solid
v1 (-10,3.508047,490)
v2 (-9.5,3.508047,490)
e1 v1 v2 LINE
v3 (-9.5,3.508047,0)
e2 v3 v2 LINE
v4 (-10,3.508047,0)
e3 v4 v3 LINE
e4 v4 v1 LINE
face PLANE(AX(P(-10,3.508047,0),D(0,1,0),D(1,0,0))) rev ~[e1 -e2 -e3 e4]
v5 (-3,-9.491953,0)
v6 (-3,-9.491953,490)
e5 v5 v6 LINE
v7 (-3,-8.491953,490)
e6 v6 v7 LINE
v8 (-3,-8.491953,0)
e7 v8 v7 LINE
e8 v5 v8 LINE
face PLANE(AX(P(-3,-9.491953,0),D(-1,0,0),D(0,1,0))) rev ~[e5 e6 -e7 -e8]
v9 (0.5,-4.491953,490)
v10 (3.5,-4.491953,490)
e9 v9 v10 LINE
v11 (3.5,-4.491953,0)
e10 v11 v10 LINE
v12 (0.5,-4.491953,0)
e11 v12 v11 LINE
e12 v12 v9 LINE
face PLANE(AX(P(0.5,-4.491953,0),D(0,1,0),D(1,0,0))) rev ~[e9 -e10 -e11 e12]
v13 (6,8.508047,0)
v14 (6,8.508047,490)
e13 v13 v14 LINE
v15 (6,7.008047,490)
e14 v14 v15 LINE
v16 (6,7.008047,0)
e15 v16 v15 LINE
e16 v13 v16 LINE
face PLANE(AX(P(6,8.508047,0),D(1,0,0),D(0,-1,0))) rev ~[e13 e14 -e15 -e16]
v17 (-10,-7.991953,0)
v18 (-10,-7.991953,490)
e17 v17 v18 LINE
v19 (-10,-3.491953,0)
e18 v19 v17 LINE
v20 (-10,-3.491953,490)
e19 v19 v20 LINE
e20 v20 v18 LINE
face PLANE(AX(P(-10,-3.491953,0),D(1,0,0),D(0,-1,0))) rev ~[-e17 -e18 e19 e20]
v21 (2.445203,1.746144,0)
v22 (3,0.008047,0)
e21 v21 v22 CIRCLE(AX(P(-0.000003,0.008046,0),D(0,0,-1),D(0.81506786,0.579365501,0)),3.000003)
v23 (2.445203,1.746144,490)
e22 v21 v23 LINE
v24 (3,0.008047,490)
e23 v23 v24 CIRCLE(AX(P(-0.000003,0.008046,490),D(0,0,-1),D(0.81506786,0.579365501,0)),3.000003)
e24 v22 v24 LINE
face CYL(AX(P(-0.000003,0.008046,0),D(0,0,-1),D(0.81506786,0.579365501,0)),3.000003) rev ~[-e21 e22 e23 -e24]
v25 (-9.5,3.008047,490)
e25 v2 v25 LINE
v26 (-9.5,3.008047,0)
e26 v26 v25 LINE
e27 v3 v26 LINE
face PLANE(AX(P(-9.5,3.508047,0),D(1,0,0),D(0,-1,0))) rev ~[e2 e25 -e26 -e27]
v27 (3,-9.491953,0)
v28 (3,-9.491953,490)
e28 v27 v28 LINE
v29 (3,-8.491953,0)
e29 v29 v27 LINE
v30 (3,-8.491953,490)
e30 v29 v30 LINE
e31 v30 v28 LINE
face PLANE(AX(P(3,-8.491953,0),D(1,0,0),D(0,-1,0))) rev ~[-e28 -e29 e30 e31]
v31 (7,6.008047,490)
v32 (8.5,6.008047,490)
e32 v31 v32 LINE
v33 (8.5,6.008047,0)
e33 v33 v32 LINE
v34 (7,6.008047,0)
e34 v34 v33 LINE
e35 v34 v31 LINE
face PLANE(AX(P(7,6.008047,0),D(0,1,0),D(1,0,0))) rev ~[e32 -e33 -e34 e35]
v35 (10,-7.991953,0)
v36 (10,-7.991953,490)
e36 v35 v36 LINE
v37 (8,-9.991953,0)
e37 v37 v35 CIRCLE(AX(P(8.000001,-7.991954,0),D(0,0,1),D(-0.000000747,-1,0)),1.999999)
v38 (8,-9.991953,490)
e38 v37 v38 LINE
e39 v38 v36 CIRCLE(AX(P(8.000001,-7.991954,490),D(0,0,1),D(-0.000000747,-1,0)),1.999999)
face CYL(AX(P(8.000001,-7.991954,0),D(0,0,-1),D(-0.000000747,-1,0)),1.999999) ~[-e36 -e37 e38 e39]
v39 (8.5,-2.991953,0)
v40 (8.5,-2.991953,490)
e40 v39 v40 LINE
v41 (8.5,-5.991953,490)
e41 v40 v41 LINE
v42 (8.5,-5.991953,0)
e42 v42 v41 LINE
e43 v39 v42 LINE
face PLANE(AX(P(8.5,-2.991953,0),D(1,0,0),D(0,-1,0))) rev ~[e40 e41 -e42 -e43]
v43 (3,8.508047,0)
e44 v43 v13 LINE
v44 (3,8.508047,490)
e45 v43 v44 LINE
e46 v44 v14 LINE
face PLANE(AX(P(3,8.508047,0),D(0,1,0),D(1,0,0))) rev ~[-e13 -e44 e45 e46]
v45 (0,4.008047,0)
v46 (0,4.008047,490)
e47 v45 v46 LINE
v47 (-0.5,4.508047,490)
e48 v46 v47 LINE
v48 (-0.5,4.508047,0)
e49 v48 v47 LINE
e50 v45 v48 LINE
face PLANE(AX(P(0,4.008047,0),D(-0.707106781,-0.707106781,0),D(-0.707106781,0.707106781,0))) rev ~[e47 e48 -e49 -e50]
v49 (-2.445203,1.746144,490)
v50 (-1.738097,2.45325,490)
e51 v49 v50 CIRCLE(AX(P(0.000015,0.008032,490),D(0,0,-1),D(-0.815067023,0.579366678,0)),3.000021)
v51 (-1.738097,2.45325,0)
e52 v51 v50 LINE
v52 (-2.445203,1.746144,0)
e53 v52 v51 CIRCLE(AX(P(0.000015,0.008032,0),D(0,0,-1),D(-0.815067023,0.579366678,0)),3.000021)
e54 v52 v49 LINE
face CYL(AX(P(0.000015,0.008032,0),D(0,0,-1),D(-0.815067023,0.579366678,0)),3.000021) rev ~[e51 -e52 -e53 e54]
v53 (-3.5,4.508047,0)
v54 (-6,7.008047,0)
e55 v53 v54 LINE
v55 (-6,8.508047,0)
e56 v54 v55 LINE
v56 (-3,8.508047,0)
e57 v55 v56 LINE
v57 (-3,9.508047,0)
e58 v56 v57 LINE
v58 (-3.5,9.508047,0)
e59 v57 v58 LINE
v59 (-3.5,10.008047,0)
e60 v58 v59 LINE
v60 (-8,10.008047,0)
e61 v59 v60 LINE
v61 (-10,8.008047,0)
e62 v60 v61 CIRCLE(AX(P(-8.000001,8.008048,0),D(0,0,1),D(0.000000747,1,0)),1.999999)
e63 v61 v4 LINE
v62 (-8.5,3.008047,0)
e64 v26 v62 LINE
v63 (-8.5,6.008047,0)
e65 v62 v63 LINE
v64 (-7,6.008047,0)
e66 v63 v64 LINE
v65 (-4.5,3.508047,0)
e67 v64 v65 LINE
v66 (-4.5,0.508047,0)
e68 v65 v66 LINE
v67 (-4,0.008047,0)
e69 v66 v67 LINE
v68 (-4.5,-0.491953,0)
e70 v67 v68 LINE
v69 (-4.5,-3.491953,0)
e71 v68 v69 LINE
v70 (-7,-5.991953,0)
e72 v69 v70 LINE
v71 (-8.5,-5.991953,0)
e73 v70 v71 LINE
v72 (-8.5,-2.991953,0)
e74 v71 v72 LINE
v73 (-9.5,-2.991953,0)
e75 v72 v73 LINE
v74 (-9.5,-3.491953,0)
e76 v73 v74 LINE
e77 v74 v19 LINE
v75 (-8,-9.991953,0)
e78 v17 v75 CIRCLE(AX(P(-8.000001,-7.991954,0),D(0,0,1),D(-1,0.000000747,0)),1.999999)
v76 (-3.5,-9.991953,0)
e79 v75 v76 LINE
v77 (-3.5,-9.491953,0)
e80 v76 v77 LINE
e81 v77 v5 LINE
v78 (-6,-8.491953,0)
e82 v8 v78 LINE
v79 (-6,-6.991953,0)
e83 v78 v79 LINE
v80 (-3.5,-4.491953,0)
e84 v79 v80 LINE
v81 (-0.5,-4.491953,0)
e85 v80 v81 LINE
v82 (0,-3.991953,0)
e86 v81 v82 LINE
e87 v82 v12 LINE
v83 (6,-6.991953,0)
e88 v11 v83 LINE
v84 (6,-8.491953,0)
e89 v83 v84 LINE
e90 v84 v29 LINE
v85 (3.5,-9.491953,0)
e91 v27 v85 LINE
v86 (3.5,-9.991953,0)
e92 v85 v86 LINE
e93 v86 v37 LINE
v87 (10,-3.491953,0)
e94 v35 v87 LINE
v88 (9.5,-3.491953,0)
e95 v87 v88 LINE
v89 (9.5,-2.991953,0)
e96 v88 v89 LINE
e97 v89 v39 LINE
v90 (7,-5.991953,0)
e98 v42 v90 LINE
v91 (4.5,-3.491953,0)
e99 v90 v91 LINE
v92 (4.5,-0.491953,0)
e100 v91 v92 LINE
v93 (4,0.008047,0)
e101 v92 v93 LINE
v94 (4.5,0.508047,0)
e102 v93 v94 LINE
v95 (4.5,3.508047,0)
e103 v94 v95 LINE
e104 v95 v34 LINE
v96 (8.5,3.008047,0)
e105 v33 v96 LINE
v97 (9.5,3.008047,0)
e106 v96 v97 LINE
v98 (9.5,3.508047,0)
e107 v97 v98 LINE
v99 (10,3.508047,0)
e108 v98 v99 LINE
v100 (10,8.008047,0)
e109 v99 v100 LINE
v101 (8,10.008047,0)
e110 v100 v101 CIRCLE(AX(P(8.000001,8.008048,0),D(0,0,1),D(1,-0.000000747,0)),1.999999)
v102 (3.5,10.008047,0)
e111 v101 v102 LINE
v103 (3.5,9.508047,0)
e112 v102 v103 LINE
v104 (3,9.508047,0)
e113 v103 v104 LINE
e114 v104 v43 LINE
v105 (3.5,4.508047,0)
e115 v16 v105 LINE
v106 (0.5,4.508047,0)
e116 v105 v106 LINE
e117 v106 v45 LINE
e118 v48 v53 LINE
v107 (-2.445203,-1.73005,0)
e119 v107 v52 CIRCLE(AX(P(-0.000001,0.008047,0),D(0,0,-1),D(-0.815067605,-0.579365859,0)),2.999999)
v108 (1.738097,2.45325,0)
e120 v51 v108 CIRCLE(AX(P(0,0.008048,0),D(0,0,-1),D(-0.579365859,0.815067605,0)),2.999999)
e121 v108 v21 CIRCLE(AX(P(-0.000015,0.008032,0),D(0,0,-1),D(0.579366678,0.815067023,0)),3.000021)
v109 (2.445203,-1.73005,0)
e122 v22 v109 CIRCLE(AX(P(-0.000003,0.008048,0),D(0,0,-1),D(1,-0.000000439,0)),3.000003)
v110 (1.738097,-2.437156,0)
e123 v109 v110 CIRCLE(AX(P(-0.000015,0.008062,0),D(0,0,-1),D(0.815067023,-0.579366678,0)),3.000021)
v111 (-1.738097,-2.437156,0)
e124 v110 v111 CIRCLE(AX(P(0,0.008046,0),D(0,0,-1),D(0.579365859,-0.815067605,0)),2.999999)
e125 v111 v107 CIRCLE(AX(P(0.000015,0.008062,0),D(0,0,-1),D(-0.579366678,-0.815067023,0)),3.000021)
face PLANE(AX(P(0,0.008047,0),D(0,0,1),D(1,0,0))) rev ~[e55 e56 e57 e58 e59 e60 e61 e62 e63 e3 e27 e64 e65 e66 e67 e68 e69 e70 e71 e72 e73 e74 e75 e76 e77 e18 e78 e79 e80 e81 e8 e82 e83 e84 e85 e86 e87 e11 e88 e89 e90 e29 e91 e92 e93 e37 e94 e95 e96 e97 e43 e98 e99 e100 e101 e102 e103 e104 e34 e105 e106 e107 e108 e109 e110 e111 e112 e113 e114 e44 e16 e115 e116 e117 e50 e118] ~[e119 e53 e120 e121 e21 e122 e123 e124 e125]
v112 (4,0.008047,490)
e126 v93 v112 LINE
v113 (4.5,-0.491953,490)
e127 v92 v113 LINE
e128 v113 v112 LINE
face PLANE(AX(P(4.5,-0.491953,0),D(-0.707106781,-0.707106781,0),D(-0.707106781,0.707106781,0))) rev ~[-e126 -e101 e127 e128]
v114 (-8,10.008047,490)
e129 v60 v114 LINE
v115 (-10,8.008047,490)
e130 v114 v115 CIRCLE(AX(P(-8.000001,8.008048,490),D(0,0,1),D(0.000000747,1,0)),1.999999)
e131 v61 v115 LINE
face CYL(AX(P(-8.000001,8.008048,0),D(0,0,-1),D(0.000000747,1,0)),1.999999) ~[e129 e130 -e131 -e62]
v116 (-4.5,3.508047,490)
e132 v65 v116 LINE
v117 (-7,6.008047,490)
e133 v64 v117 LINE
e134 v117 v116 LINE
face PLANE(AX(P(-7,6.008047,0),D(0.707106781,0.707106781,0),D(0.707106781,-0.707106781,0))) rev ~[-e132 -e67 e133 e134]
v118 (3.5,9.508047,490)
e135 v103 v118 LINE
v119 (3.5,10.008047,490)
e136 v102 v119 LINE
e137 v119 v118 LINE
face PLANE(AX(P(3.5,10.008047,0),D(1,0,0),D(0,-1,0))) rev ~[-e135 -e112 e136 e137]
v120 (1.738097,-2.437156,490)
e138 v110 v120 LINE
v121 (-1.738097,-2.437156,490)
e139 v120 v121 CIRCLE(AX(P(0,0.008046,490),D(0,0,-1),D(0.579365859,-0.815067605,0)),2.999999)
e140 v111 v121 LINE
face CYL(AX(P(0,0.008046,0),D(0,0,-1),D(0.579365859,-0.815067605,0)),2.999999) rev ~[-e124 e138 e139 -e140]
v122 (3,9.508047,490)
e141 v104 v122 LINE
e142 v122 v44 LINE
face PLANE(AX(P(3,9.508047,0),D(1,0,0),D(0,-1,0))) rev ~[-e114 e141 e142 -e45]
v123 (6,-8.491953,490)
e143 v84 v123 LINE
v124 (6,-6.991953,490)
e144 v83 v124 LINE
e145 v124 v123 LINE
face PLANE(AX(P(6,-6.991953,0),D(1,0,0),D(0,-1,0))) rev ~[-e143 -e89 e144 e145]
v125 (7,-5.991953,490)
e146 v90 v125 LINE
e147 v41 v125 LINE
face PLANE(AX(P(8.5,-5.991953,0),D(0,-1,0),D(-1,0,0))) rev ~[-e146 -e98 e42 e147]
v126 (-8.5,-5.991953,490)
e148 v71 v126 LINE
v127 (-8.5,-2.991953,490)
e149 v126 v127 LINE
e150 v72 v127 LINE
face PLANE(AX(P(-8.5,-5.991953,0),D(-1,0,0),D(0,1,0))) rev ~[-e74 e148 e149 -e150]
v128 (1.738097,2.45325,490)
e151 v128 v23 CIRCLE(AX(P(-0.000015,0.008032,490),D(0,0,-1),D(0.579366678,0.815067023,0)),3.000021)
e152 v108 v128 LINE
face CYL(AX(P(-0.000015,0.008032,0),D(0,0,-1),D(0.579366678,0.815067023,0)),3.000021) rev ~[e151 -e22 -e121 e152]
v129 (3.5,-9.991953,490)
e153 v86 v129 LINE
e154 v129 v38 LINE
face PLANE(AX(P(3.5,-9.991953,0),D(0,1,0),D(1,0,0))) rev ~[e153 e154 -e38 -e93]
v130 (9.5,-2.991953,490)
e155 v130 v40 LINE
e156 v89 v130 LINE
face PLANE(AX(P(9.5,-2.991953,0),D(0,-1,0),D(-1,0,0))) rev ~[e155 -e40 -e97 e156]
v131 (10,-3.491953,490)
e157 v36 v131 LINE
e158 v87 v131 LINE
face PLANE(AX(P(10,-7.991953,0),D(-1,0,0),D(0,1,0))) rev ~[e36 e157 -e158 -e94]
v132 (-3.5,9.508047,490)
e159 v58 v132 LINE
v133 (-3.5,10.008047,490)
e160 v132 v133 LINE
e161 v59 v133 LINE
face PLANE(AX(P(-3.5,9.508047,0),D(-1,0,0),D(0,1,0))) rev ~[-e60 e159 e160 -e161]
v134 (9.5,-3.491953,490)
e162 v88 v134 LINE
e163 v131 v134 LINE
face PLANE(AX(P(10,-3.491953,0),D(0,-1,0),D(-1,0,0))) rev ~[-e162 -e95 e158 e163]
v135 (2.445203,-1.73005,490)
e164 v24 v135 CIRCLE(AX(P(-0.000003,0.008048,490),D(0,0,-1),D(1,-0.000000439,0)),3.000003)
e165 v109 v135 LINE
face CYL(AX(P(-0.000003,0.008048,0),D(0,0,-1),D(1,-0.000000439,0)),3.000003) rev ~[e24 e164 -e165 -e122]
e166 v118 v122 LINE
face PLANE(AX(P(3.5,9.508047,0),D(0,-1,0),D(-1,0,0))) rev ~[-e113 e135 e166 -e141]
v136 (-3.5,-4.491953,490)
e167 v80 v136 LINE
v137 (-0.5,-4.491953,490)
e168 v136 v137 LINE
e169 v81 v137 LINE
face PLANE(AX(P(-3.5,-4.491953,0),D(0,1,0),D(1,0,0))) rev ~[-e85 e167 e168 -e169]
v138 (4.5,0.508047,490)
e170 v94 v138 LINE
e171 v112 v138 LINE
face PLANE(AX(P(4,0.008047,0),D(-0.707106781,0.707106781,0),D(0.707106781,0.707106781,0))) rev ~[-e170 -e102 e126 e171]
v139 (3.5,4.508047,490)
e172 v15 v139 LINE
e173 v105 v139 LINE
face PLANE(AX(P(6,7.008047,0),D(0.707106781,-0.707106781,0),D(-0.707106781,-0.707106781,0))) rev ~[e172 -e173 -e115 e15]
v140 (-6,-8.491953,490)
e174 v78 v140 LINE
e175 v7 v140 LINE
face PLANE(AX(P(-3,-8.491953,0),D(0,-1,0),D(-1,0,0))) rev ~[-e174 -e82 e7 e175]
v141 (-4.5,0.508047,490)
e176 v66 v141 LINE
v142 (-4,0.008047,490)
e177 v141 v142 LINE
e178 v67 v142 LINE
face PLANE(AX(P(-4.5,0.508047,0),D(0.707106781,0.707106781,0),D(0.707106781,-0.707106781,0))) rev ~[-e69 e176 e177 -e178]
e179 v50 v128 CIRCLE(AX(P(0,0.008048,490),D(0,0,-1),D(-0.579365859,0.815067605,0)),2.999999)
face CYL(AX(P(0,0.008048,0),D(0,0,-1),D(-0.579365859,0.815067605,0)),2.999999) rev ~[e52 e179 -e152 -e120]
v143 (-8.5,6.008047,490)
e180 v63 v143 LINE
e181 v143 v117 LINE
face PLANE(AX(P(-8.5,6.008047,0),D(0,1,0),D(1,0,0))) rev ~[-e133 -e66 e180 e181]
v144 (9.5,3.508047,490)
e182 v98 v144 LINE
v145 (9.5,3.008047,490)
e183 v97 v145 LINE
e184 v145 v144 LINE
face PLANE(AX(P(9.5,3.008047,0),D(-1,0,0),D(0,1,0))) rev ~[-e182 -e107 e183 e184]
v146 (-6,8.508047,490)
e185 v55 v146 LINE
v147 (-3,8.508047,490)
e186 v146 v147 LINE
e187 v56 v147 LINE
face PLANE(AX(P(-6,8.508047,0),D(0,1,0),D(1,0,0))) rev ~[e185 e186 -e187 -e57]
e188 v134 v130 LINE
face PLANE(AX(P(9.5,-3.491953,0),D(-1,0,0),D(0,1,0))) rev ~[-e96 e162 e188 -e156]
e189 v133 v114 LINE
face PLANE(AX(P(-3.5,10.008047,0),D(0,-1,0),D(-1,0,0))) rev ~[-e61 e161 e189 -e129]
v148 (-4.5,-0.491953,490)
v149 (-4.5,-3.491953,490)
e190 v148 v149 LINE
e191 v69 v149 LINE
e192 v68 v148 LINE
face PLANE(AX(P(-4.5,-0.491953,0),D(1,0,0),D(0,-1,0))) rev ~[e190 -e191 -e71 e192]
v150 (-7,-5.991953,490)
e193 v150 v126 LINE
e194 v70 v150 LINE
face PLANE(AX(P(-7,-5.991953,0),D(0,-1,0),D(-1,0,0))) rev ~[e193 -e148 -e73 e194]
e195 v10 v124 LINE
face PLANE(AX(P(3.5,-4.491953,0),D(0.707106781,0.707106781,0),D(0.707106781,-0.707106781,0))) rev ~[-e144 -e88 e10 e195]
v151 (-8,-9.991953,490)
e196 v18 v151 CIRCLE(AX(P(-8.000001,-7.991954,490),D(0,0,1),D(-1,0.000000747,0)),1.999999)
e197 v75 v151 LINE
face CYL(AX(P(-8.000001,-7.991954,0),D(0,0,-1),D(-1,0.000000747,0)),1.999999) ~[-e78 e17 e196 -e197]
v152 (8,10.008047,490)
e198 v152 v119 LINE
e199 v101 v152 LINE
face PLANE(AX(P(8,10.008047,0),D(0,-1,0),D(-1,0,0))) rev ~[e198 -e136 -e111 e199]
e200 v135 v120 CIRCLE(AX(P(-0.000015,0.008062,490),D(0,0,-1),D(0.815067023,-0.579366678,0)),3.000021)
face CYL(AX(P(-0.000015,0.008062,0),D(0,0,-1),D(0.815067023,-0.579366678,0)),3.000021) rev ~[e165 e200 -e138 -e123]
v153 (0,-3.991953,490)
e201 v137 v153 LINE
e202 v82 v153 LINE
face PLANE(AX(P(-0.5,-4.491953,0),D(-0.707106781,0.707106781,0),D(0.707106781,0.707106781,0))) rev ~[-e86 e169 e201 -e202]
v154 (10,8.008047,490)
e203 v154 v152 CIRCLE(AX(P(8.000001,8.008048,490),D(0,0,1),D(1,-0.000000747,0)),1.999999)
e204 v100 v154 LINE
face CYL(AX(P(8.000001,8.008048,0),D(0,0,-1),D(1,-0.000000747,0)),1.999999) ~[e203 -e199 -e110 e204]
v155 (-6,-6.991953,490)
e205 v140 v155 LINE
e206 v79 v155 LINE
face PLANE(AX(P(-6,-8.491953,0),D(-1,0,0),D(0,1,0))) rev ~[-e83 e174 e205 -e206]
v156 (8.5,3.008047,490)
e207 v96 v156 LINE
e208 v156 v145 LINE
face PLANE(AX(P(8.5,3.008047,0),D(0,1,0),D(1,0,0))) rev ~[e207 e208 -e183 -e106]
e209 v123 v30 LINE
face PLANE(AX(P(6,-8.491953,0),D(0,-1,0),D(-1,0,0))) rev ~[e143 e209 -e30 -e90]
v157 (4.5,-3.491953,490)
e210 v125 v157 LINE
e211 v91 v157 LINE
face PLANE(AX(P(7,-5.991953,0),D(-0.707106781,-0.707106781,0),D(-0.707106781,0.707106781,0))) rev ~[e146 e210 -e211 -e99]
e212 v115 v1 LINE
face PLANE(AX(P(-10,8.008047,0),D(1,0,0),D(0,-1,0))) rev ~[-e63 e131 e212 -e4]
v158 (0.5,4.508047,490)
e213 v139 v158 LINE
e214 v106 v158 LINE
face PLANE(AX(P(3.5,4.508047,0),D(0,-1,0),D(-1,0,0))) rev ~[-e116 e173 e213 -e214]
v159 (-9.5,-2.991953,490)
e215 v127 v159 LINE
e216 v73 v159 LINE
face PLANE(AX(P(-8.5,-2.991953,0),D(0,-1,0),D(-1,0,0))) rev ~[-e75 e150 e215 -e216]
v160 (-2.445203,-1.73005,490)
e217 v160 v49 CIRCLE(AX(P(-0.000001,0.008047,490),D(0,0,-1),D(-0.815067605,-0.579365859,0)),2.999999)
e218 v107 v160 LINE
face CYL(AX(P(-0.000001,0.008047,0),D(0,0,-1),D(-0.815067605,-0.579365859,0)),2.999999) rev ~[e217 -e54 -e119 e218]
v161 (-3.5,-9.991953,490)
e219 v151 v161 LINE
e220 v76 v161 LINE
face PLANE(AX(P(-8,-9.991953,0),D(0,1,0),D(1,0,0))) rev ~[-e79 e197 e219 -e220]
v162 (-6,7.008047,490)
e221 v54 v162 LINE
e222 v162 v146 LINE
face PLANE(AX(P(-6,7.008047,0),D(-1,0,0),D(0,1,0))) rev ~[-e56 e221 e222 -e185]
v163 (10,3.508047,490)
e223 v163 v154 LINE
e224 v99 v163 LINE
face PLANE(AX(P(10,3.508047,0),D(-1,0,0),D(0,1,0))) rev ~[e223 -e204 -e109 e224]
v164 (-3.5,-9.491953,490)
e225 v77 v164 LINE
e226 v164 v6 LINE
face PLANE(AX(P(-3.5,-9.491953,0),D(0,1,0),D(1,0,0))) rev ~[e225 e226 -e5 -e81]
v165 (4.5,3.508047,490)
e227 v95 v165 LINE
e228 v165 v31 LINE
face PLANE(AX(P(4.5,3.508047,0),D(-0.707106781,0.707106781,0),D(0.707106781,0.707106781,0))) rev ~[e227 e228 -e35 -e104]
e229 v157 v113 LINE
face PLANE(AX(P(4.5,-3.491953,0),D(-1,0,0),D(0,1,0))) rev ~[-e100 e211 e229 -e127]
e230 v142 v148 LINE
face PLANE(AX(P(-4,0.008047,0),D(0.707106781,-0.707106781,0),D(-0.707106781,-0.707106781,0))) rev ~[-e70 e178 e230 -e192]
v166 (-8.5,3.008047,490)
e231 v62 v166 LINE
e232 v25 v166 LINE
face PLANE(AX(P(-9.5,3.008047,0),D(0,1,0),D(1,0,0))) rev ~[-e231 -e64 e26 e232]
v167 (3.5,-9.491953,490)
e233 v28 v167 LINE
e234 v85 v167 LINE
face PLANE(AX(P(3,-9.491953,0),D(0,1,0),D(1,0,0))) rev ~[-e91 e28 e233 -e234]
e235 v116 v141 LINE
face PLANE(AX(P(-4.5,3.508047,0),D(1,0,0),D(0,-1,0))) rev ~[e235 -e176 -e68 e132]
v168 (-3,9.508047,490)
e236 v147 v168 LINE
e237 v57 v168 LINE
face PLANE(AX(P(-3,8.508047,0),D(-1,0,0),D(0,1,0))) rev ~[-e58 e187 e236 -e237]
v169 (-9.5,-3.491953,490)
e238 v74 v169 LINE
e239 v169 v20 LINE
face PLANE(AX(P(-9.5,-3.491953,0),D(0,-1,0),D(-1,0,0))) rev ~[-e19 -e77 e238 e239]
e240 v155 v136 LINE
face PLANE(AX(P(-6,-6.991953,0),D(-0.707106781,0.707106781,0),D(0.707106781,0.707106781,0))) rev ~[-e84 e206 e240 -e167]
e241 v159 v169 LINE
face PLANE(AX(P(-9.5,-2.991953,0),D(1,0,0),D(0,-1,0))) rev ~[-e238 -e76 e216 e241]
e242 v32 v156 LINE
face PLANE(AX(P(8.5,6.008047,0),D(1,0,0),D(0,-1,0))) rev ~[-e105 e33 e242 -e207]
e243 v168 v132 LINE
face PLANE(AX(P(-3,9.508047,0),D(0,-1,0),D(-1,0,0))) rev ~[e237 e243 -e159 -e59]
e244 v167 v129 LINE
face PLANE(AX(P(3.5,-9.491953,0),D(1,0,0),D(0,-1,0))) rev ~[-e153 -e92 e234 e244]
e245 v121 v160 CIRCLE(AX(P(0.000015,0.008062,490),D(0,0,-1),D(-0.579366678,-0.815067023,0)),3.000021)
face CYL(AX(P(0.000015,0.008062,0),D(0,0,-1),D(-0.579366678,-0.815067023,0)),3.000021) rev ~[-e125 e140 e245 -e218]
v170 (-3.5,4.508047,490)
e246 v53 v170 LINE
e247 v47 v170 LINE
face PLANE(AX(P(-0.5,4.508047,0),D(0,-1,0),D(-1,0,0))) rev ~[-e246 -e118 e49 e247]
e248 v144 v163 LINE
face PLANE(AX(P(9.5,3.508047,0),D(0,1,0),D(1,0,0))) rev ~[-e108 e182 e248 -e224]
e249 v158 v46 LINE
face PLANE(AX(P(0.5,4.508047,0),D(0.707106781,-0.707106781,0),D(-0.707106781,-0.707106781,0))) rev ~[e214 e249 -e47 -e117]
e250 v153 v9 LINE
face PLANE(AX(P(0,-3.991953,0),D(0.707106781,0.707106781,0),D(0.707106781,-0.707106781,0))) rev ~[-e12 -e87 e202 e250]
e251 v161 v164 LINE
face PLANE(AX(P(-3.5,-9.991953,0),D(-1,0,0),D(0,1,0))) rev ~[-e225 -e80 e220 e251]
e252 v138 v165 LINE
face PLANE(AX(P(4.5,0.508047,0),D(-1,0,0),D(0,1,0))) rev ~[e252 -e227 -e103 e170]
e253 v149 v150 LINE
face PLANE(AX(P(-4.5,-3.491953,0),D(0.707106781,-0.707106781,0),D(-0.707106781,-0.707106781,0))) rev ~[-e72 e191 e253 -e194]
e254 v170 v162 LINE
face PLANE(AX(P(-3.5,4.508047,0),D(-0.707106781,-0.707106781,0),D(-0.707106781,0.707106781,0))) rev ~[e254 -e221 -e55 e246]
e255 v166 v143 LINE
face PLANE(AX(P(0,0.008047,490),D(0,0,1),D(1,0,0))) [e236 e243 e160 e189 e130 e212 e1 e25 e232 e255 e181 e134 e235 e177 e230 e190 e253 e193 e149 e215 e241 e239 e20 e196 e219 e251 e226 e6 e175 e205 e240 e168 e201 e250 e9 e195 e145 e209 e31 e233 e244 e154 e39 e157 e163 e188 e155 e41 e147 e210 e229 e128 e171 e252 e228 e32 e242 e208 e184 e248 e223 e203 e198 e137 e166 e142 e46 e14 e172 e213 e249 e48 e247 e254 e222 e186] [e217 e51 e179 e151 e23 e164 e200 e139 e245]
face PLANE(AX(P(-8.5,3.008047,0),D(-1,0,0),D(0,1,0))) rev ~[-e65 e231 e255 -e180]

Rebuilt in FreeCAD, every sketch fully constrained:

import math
import FreeCAD as App
import Part
import Sketcher

V = App.Vector

doc = App.newDocument("Part")
body = doc.addObject("PartDesign::Body", "Body")

sketch1 = body.newObject("Sketcher::SketchObject", "Sketch")
sketch1.AttachmentSupport = (doc.getObject("XY_Plane"), [""])
sketch1.MapMode = "FlatFace"
sketch1.addGeometry(Part.ArcOfCircle(Part.Circle(V(-8.000001, -7.991954, 0), V(0, 0, 1), 1.999999), math.radians(179.999957), math.radians(270.000043)), False)
sketch1.addGeometry(Part.LineSegment(V(-8, -9.991953, 0), V(-3.5, -9.991953, 0)), False)
sketch1.addGeometry(Part.LineSegment(V(-3.5, -9.991953, 0), V(-3.5, -9.491953, 0)), False)
sketch1.addGeometry(Part.LineSegment(V(-3.5, -9.491953, 0), V(-3, -9.491953, 0)), False)
sketch1.addGeometry(Part.LineSegment(V(-3, -9.491953, 0), V(-3, -8.491953, 0)), False)
sketch1.addGeometry(Part.LineSegment(V(-3, -8.491953, 0), V(-6, -8.491953, 0)), False)
sketch1.addGeometry(Part.LineSegment(V(-6, -8.491953, 0), V(-6, -6.991953, 0)), False)
sketch1.addGeometry(Part.LineSegment(V(-6, -6.991953, 0), V(-3.5, -4.491953, 0)), False)
sketch1.addGeometry(Part.LineSegment(V(-3.5, -4.491953, 0), V(-0.5, -4.491953, 0)), False)
sketch1.addGeometry(Part.LineSegment(V(-0.5, -4.491953, 0), V(0, -3.991953, 0)), False)
sketch1.addGeometry(Part.LineSegment(V(0, -3.991953, 0), V(0.5, -4.491953, 0)), False)
sketch1.addGeometry(Part.LineSegment(V(0.5, -4.491953, 0), V(3.5, -4.491953, 0)), False)
sketch1.addGeometry(Part.LineSegment(V(3.5, -4.491953, 0), V(6, -6.991953, 0)), False)
sketch1.addGeometry(Part.LineSegment(V(6, -6.991953, 0), V(6, -8.491953, 0)), False)
sketch1.addGeometry(Part.LineSegment(V(6, -8.491953, 0), V(3, -8.491953, 0)), False)
sketch1.addGeometry(Part.LineSegment(V(3, -8.491953, 0), V(3, -9.491953, 0)), False)
sketch1.addGeometry(Part.LineSegment(V(3, -9.491953, 0), V(3.5, -9.491953, 0)), False)
sketch1.addGeometry(Part.LineSegment(V(3.5, -9.491953, 0), V(3.5, -9.991953, 0)), False)
sketch1.addGeometry(Part.LineSegment(V(3.5, -9.991953, 0), V(8, -9.991953, 0)), False)
sketch1.addGeometry(Part.ArcOfCircle(Part.Circle(V(8.000001, -7.991954, 0), V(0, 0, 1), 1.999999), math.radians(-90.000043), math.radians(0.000043)), False)
sketch1.addGeometry(Part.LineSegment(V(10, -7.991953, 0), V(10, -3.491953, 0)), False)
sketch1.addGeometry(Part.LineSegment(V(10, -3.491953, 0), V(9.5, -3.491953, 0)), False)
sketch1.addGeometry(Part.LineSegment(V(9.5, -3.491953, 0), V(9.5, -2.991953, 0)), False)
sketch1.addGeometry(Part.LineSegment(V(9.5, -2.991953, 0), V(8.5, -2.991953, 0)), False)
sketch1.addGeometry(Part.LineSegment(V(8.5, -2.991953, 0), V(8.5, -5.991953, 0)), False)
sketch1.addGeometry(Part.LineSegment(V(8.5, -5.991953, 0), V(7, -5.991953, 0)), False)
sketch1.addGeometry(Part.LineSegment(V(7, -5.991953, 0), V(4.5, -3.491953, 0)), False)
sketch1.addGeometry(Part.LineSegment(V(4.5, -3.491953, 0), V(4.5, -0.491953, 0)), False)
sketch1.addGeometry(Part.LineSegment(V(4.5, -0.491953, 0), V(4, 0.008047, 0)), False)
sketch1.addGeometry(Part.LineSegment(V(4, 0.008047, 0), V(4.5, 0.508047, 0)), False)
sketch1.addGeometry(Part.LineSegment(V(4.5, 0.508047, 0), V(4.5, 3.508047, 0)), False)
sketch1.addGeometry(Part.LineSegment(V(4.5, 3.508047, 0), V(7, 6.008047, 0)), False)
sketch1.addGeometry(Part.LineSegment(V(7, 6.008047, 0), V(8.5, 6.008047, 0)), False)
sketch1.addGeometry(Part.LineSegment(V(8.5, 6.008047, 0), V(8.5, 3.008047, 0)), False)
sketch1.addGeometry(Part.LineSegment(V(8.5, 3.008047, 0), V(9.5, 3.008047, 0)), False)
sketch1.addGeometry(Part.LineSegment(V(9.5, 3.008047, 0), V(9.5, 3.508047, 0)), False)
sketch1.addGeometry(Part.LineSegment(V(9.5, 3.508047, 0), V(10, 3.508047, 0)), False)
sketch1.addGeometry(Part.LineSegment(V(10, 3.508047, 0), V(10, 8.008047, 0)), False)
sketch1.addGeometry(Part.ArcOfCircle(Part.Circle(V(8.000001, 8.008048, 0), V(0, 0, 1), 1.999999), math.radians(-0.000043), math.radians(90.000043)), False)
sketch1.addGeometry(Part.LineSegment(V(8, 10.008047, 0), V(3.5, 10.008047, 0)), False)
sketch1.addGeometry(Part.LineSegment(V(3.5, 10.008047, 0), V(3.5, 9.508047, 0)), False)
sketch1.addGeometry(Part.LineSegment(V(3.5, 9.508047, 0), V(3, 9.508047, 0)), False)
sketch1.addGeometry(Part.LineSegment(V(3, 9.508047, 0), V(3, 8.508047, 0)), False)
sketch1.addGeometry(Part.LineSegment(V(3, 8.508047, 0), V(6, 8.508047, 0)), False)
sketch1.addGeometry(Part.LineSegment(V(6, 8.508047, 0), V(6, 7.008047, 0)), False)
sketch1.addGeometry(Part.LineSegment(V(6, 7.008047, 0), V(3.5, 4.508047, 0)), False)
sketch1.addGeometry(Part.LineSegment(V(3.5, 4.508047, 0), V(0.5, 4.508047, 0)), False)
sketch1.addGeometry(Part.LineSegment(V(0.5, 4.508047, 0), V(0, 4.008047, 0)), False)
sketch1.addGeometry(Part.LineSegment(V(0, 4.008047, 0), V(-0.5, 4.508047, 0)), False)
sketch1.addGeometry(Part.LineSegment(V(-0.5, 4.508047, 0), V(-3.5, 4.508047, 0)), False)
sketch1.addGeometry(Part.LineSegment(V(-3.5, 4.508047, 0), V(-6, 7.008047, 0)), False)
sketch1.addGeometry(Part.LineSegment(V(-6, 7.008047, 0), V(-6, 8.508047, 0)), False)
sketch1.addGeometry(Part.LineSegment(V(-6, 8.508047, 0), V(-3, 8.508047, 0)), False)
sketch1.addGeometry(Part.LineSegment(V(-3, 8.508047, 0), V(-3, 9.508047, 0)), False)
sketch1.addGeometry(Part.LineSegment(V(-3, 9.508047, 0), V(-3.5, 9.508047, 0)), False)
sketch1.addGeometry(Part.LineSegment(V(-3.5, 9.508047, 0), V(-3.5, 10.008047, 0)), False)
sketch1.addGeometry(Part.LineSegment(V(-3.5, 10.008047, 0), V(-8, 10.008047, 0)), False)
sketch1.addGeometry(Part.ArcOfCircle(Part.Circle(V(-8.000001, 8.008048, 0), V(0, 0, 1), 1.999999), math.radians(89.999957), math.radians(180.000043)), False)
sketch1.addGeometry(Part.LineSegment(V(-10, 8.008047, 0), V(-10, 3.508047, 0)), False)
sketch1.addGeometry(Part.LineSegment(V(-10, 3.508047, 0), V(-9.5, 3.508047, 0)), False)
sketch1.addGeometry(Part.LineSegment(V(-9.5, 3.508047, 0), V(-9.5, 3.008047, 0)), False)
sketch1.addGeometry(Part.LineSegment(V(-9.5, 3.008047, 0), V(-8.5, 3.008047, 0)), False)
sketch1.addGeometry(Part.LineSegment(V(-8.5, 3.008047, 0), V(-8.5, 6.008047, 0)), False)
sketch1.addGeometry(Part.LineSegment(V(-8.5, 6.008047, 0), V(-7, 6.008047, 0)), False)
sketch1.addGeometry(Part.LineSegment(V(-7, 6.008047, 0), V(-4.5, 3.508047, 0)), False)
sketch1.addGeometry(Part.LineSegment(V(-4.5, 3.508047, 0), V(-4.5, 0.508047, 0)), False)
sketch1.addGeometry(Part.LineSegment(V(-4.5, 0.508047, 0), V(-4, 0.008047, 0)), False)
sketch1.addGeometry(Part.LineSegment(V(-4, 0.008047, 0), V(-4.5, -0.491953, 0)), False)
sketch1.addGeometry(Part.LineSegment(V(-4.5, -0.491953, 0), V(-4.5, -3.491953, 0)), False)
sketch1.addGeometry(Part.LineSegment(V(-4.5, -3.491953, 0), V(-7, -5.991953, 0)), False)
sketch1.addGeometry(Part.LineSegment(V(-7, -5.991953, 0), V(-8.5, -5.991953, 0)), False)
sketch1.addGeometry(Part.LineSegment(V(-8.5, -5.991953, 0), V(-8.5, -2.991953, 0)), False)
sketch1.addGeometry(Part.LineSegment(V(-8.5, -2.991953, 0), V(-9.5, -2.991953, 0)), False)
sketch1.addGeometry(Part.LineSegment(V(-9.5, -2.991953, 0), V(-9.5, -3.491953, 0)), False)
sketch1.addGeometry(Part.LineSegment(V(-9.5, -3.491953, 0), V(-10, -3.491953, 0)), False)
sketch1.addGeometry(Part.LineSegment(V(-10, -3.491953, 0), V(-10, -7.991953, 0)), False)
sketch1.addGeometry(Part.ArcOfCircle(Part.Circle(V(-0.000015, 0.008032, 0), V(0, 0, 1), 3.000021), math.radians(35.40601), math.radians(54.59399)), False)
sketch1.addGeometry(Part.ArcOfCircle(Part.Circle(V(-0.000003, 0.008046, 0), V(0, 0, 1), 3.000003), math.radians(0.000025), math.radians(35.405928)), False)
sketch1.addGeometry(Part.ArcOfCircle(Part.Circle(V(-0.000003, 0.008048, 0), V(0, 0, 1), 3.000003), math.radians(-35.405928), math.radians(-0.000025)), False)
sketch1.addGeometry(Part.ArcOfCircle(Part.Circle(V(-0.000015, 0.008062, 0), V(0, 0, 1), 3.000021), math.radians(-54.59399), math.radians(-35.40601)), False)
sketch1.addGeometry(Part.ArcOfCircle(Part.Circle(V(0, 0.008046, 0), V(0, 0, 1), 2.999999), math.radians(-125.405953), math.radians(-54.594047)), False)
sketch1.addGeometry(Part.ArcOfCircle(Part.Circle(V(0.000015, 0.008062, 0), V(0, 0, 1), 3.000021), math.radians(-144.59399), math.radians(-125.40601)), False)
sketch1.addGeometry(Part.ArcOfCircle(Part.Circle(V(-0.000001, 0.008047, 0), V(0, 0, 1), 2.999999), math.radians(144.594047), math.radians(215.405953)), False)
sketch1.addGeometry(Part.ArcOfCircle(Part.Circle(V(0.000015, 0.008032, 0), V(0, 0, 1), 3.000021), math.radians(125.40601), math.radians(144.59399)), False)
sketch1.addGeometry(Part.ArcOfCircle(Part.Circle(V(0, 0.008048, 0), V(0, 0, 1), 2.999999), math.radians(54.594047), math.radians(125.405953)), False)
sketch1.addConstraint(Sketcher.Constraint("Coincident", 0, 2, 1, 1))
sketch1.addConstraint(Sketcher.Constraint("Coincident", 1, 2, 2, 1))
sketch1.addConstraint(Sketcher.Constraint("Coincident", 2, 2, 3, 1))
sketch1.addConstraint(Sketcher.Constraint("Coincident", 3, 2, 4, 1))
sketch1.addConstraint(Sketcher.Constraint("Coincident", 4, 2, 5, 1))
sketch1.addConstraint(Sketcher.Constraint("Coincident", 5, 2, 6, 1))
sketch1.addConstraint(Sketcher.Constraint("Coincident", 6, 2, 7, 1))
sketch1.addConstraint(Sketcher.Constraint("Coincident", 7, 2, 8, 1))
sketch1.addConstraint(Sketcher.Constraint("Coincident", 8, 2, 9, 1))
sketch1.addConstraint(Sketcher.Constraint("Coincident", 9, 2, 10, 1))
sketch1.addConstraint(Sketcher.Constraint("Coincident", 10, 2, 11, 1))
sketch1.addConstraint(Sketcher.Constraint("Coincident", 11, 2, 12, 1))
sketch1.addConstraint(Sketcher.Constraint("Coincident", 12, 2, 13, 1))
sketch1.addConstraint(Sketcher.Constraint("Coincident", 13, 2, 14, 1))
sketch1.addConstraint(Sketcher.Constraint("Coincident", 14, 2, 15, 1))
sketch1.addConstraint(Sketcher.Constraint("Coincident", 15, 2, 16, 1))
sketch1.addConstraint(Sketcher.Constraint("Coincident", 16, 2, 17, 1))
sketch1.addConstraint(Sketcher.Constraint("Coincident", 17, 2, 18, 1))
sketch1.addConstraint(Sketcher.Constraint("Coincident", 18, 2, 19, 1))
sketch1.addConstraint(Sketcher.Constraint("Coincident", 19, 2, 20, 1))
sketch1.addConstraint(Sketcher.Constraint("Coincident", 20, 2, 21, 1))
sketch1.addConstraint(Sketcher.Constraint("Coincident", 21, 2, 22, 1))
sketch1.addConstraint(Sketcher.Constraint("Coincident", 22, 2, 23, 1))
sketch1.addConstraint(Sketcher.Constraint("Coincident", 23, 2, 24, 1))
sketch1.addConstraint(Sketcher.Constraint("Coincident", 24, 2, 25, 1))
sketch1.addConstraint(Sketcher.Constraint("Coincident", 25, 2, 26, 1))
sketch1.addConstraint(Sketcher.Constraint("Coincident", 26, 2, 27, 1))
sketch1.addConstraint(Sketcher.Constraint("Coincident", 27, 2, 28, 1))
sketch1.addConstraint(Sketcher.Constraint("Coincident", 28, 2, 29, 1))
sketch1.addConstraint(Sketcher.Constraint("Coincident", 29, 2, 30, 1))
sketch1.addConstraint(Sketcher.Constraint("Coincident", 30, 2, 31, 1))
sketch1.addConstraint(Sketcher.Constraint("Coincident", 31, 2, 32, 1))
sketch1.addConstraint(Sketcher.Constraint("Coincident", 32, 2, 33, 1))
sketch1.addConstraint(Sketcher.Constraint("Coincident", 33, 2, 34, 1))
sketch1.addConstraint(Sketcher.Constraint("Coincident", 34, 2, 35, 1))
sketch1.addConstraint(Sketcher.Constraint("Coincident", 35, 2, 36, 1))
sketch1.addConstraint(Sketcher.Constraint("Coincident", 36, 2, 37, 1))
sketch1.addConstraint(Sketcher.Constraint("Coincident", 37, 2, 38, 1))
sketch1.addConstraint(Sketcher.Constraint("Coincident", 38, 2, 39, 1))
sketch1.addConstraint(Sketcher.Constraint("Coincident", 39, 2, 40, 1))
sketch1.addConstraint(Sketcher.Constraint("Coincident", 40, 2, 41, 1))
sketch1.addConstraint(Sketcher.Constraint("Coincident", 41, 2, 42, 1))
sketch1.addConstraint(Sketcher.Constraint("Coincident", 42, 2, 43, 1))
sketch1.addConstraint(Sketcher.Constraint("Coincident", 43, 2, 44, 1))
sketch1.addConstraint(Sketcher.Constraint("Coincident", 44, 2, 45, 1))
sketch1.addConstraint(Sketcher.Constraint("Coincident", 45, 2, 46, 1))
sketch1.addConstraint(Sketcher.Constraint("Coincident", 46, 2, 47, 1))
sketch1.addConstraint(Sketcher.Constraint("Coincident", 47, 2, 48, 1))
sketch1.addConstraint(Sketcher.Constraint("Coincident", 48, 2, 49, 1))
sketch1.addConstraint(Sketcher.Constraint("Coincident", 49, 2, 50, 1))
sketch1.addConstraint(Sketcher.Constraint("Coincident", 50, 2, 51, 1))
sketch1.addConstraint(Sketcher.Constraint("Coincident", 51, 2, 52, 1))
sketch1.addConstraint(Sketcher.Constraint("Coincident", 52, 2, 53, 1))
sketch1.addConstraint(Sketcher.Constraint("Coincident", 53, 2, 54, 1))
sketch1.addConstraint(Sketcher.Constraint("Coincident", 54, 2, 55, 1))
sketch1.addConstraint(Sketcher.Constraint("Coincident", 55, 2, 56, 1))
sketch1.addConstraint(Sketcher.Constraint("Coincident", 56, 2, 57, 1))
sketch1.addConstraint(Sketcher.Constraint("Coincident", 57, 2, 58, 1))
sketch1.addConstraint(Sketcher.Constraint("Coincident", 58, 2, 59, 1))
sketch1.addConstraint(Sketcher.Constraint("Coincident", 59, 2, 60, 1))
sketch1.addConstraint(Sketcher.Constraint("Coincident", 60, 2, 61, 1))
sketch1.addConstraint(Sketcher.Constraint("Coincident", 61, 2, 62, 1))
sketch1.addConstraint(Sketcher.Constraint("Coincident", 62, 2, 63, 1))
sketch1.addConstraint(Sketcher.Constraint("Coincident", 63, 2, 64, 1))
sketch1.addConstraint(Sketcher.Constraint("Coincident", 64, 2, 65, 1))
sketch1.addConstraint(Sketcher.Constraint("Coincident", 65, 2, 66, 1))
sketch1.addConstraint(Sketcher.Constraint("Coincident", 66, 2, 67, 1))
sketch1.addConstraint(Sketcher.Constraint("Coincident", 67, 2, 68, 1))
sketch1.addConstraint(Sketcher.Constraint("Coincident", 68, 2, 69, 1))
sketch1.addConstraint(Sketcher.Constraint("Coincident", 69, 2, 70, 1))
sketch1.addConstraint(Sketcher.Constraint("Coincident", 70, 2, 71, 1))
sketch1.addConstraint(Sketcher.Constraint("Coincident", 71, 2, 72, 1))
sketch1.addConstraint(Sketcher.Constraint("Coincident", 72, 2, 73, 1))
sketch1.addConstraint(Sketcher.Constraint("Coincident", 73, 2, 74, 1))
sketch1.addConstraint(Sketcher.Constraint("Coincident", 74, 2, 75, 1))
sketch1.addConstraint(Sketcher.Constraint("Coincident", 75, 2, 0, 1))
sketch1.addConstraint(Sketcher.Constraint("Coincident", 76, 1, 77, 2))
sketch1.addConstraint(Sketcher.Constraint("Coincident", 77, 1, 78, 2))
sketch1.addConstraint(Sketcher.Constraint("Coincident", 78, 1, 79, 2))
sketch1.addConstraint(Sketcher.Constraint("Coincident", 79, 1, 80, 2))
sketch1.addConstraint(Sketcher.Constraint("Coincident", 80, 1, 81, 2))
sketch1.addConstraint(Sketcher.Constraint("Coincident", 81, 1, 82, 2))
sketch1.addConstraint(Sketcher.Constraint("Coincident", 82, 1, 83, 2))
sketch1.addConstraint(Sketcher.Constraint("Coincident", 83, 1, 84, 2))
sketch1.addConstraint(Sketcher.Constraint("Coincident", 84, 1, 76, 2))
sketch1.addConstraint(Sketcher.Constraint("Horizontal", 1))
sketch1.addConstraint(Sketcher.Constraint("Vertical", 2))
sketch1.addConstraint(Sketcher.Constraint("Horizontal", 3))
sketch1.addConstraint(Sketcher.Constraint("Vertical", 4))
sketch1.addConstraint(Sketcher.Constraint("Horizontal", 5))
sketch1.addConstraint(Sketcher.Constraint("Vertical", 6))
sketch1.addConstraint(Sketcher.Constraint("Horizontal", 8))
sketch1.addConstraint(Sketcher.Constraint("Horizontal", 11))
sketch1.addConstraint(Sketcher.Constraint("Vertical", 13))
sketch1.addConstraint(Sketcher.Constraint("Horizontal", 14))
sketch1.addConstraint(Sketcher.Constraint("Vertical", 15))
sketch1.addConstraint(Sketcher.Constraint("Horizontal", 16))
sketch1.addConstraint(Sketcher.Constraint("Vertical", 17))
sketch1.addConstraint(Sketcher.Constraint("Horizontal", 18))
sketch1.addConstraint(Sketcher.Constraint("Vertical", 20))
sketch1.addConstraint(Sketcher.Constraint("Horizontal", 21))
sketch1.addConstraint(Sketcher.Constraint("Vertical", 22))
sketch1.addConstraint(Sketcher.Constraint("Horizontal", 23))
sketch1.addConstraint(Sketcher.Constraint("Vertical", 24))
sketch1.addConstraint(Sketcher.Constraint("Horizontal", 25))
sketch1.addConstraint(Sketcher.Constraint("Vertical", 27))
sketch1.addConstraint(Sketcher.Constraint("Vertical", 30))
sketch1.addConstraint(Sketcher.Constraint("Horizontal", 32))
sketch1.addConstraint(Sketcher.Constraint("Vertical", 33))
sketch1.addConstraint(Sketcher.Constraint("Horizontal", 34))
sketch1.addConstraint(Sketcher.Constraint("Vertical", 35))
sketch1.addConstraint(Sketcher.Constraint("Horizontal", 36))
sketch1.addConstraint(Sketcher.Constraint("Vertical", 37))
sketch1.addConstraint(Sketcher.Constraint("Horizontal", 39))
sketch1.addConstraint(Sketcher.Constraint("Vertical", 40))
sketch1.addConstraint(Sketcher.Constraint("Horizontal", 41))
sketch1.addConstraint(Sketcher.Constraint("Vertical", 42))
sketch1.addConstraint(Sketcher.Constraint("Horizontal", 43))
sketch1.addConstraint(Sketcher.Constraint("Vertical", 44))
sketch1.addConstraint(Sketcher.Constraint("Horizontal", 46))
sketch1.addConstraint(Sketcher.Constraint("Horizontal", 49))
sketch1.addConstraint(Sketcher.Constraint("Vertical", 51))
sketch1.addConstraint(Sketcher.Constraint("Horizontal", 52))
sketch1.addConstraint(Sketcher.Constraint("Vertical", 53))
sketch1.addConstraint(Sketcher.Constraint("Horizontal", 54))
sketch1.addConstraint(Sketcher.Constraint("Vertical", 55))
sketch1.addConstraint(Sketcher.Constraint("Horizontal", 56))
sketch1.addConstraint(Sketcher.Constraint("Vertical", 58))
sketch1.addConstraint(Sketcher.Constraint("Horizontal", 59))
sketch1.addConstraint(Sketcher.Constraint("Vertical", 60))
sketch1.addConstraint(Sketcher.Constraint("Horizontal", 61))
sketch1.addConstraint(Sketcher.Constraint("Vertical", 62))
sketch1.addConstraint(Sketcher.Constraint("Horizontal", 63))
sketch1.addConstraint(Sketcher.Constraint("Vertical", 65))
sketch1.addConstraint(Sketcher.Constraint("Vertical", 68))
sketch1.addConstraint(Sketcher.Constraint("Horizontal", 70))
sketch1.addConstraint(Sketcher.Constraint("Vertical", 71))
sketch1.addConstraint(Sketcher.Constraint("Horizontal", 72))
sketch1.addConstraint(Sketcher.Constraint("Vertical", 73))
sketch1.addConstraint(Sketcher.Constraint("Horizontal", 74))
sketch1.addConstraint(Sketcher.Constraint("Vertical", 75))
sketch1.addConstraint(Sketcher.Constraint("Coincident", 78, 3, 77, 3))
sketch1.addConstraint(Sketcher.Constraint("Coincident", 80, 3, 77, 3))
sketch1.addConstraint(Sketcher.Constraint("Coincident", 82, 3, 77, 3))
sketch1.addConstraint(Sketcher.Constraint("Coincident", 84, 3, 77, 3))
sketch1.addConstraint(Sketcher.Constraint("PointOnObject", 80, 3, -2))
sketch1.addConstraint(Sketcher.Constraint("PointOnObject", 9, 2, -2))
sketch1.addConstraint(Sketcher.Constraint("PointOnObject", 47, 2, -2))
sketch1.addConstraint(Sketcher.Constraint("Radius", 0, 1.999999))
sketch1.addConstraint(Sketcher.Constraint("Radius", 19, 1.999999))
sketch1.addConstraint(Sketcher.Constraint("Radius", 38, 1.999999))
sketch1.addConstraint(Sketcher.Constraint("Radius", 57, 1.999999))
sketch1.addConstraint(Sketcher.Constraint("Radius", 80, 2.999999))
sketch1.addConstraint(Sketcher.Constraint("Radius", 82, 2.999999))
sketch1.addConstraint(Sketcher.Constraint("Radius", 84, 2.999999))
sketch1.addConstraint(Sketcher.Constraint("DistanceX", 5, 2, 5, 1, 3.0))
sketch1.addConstraint(Sketcher.Constraint("DistanceX", 8, 1, 8, 2, 3.0))
sketch1.addConstraint(Sketcher.Constraint("DistanceX", 11, 1, 11, 2, 3.0))
sketch1.addConstraint(Sketcher.Constraint("DistanceX", 14, 2, 14, 1, 3.0))
sketch1.addConstraint(Sketcher.Constraint("DistanceX", 23, 2, 23, 1, 1.0))
sketch1.addConstraint(Sketcher.Constraint("DistanceX", 34, 1, 34, 2, 1.0))
sketch1.addConstraint(Sketcher.Constraint("DistanceX", 43, 1, 43, 2, 3.0))
sketch1.addConstraint(Sketcher.Constraint("DistanceX", 46, 2, 46, 1, 3.0))
sketch1.addConstraint(Sketcher.Constraint("DistanceX", 49, 2, 49, 1, 3.0))
sketch1.addConstraint(Sketcher.Constraint("DistanceX", 52, 1, 52, 2, 3.0))
sketch1.addConstraint(Sketcher.Constraint("DistanceX", 61, 1, 61, 2, 1.0))
sketch1.addConstraint(Sketcher.Constraint("DistanceX", 72, 2, 72, 1, 1.0))
sketch1.addConstraint(Sketcher.Constraint("DistanceY", 4, 1, 4, 2, 1.0))
sketch1.addConstraint(Sketcher.Constraint("DistanceY", 15, 2, 15, 1, 1.0))
sketch1.addConstraint(Sketcher.Constraint("DistanceY", 24, 2, 24, 1, 3.0))
sketch1.addConstraint(Sketcher.Constraint("DistanceY", 27, 1, 27, 2, 3.0))
sketch1.addConstraint(Sketcher.Constraint("DistanceY", 30, 1, 30, 2, 3.0))
sketch1.addConstraint(Sketcher.Constraint("DistanceY", 33, 2, 33, 1, 3.0))
sketch1.addConstraint(Sketcher.Constraint("DistanceY", 42, 2, 42, 1, 1.0))
sketch1.addConstraint(Sketcher.Constraint("DistanceY", 53, 1, 53, 2, 1.0))
sketch1.addConstraint(Sketcher.Constraint("DistanceY", 62, 1, 62, 2, 3.0))
sketch1.addConstraint(Sketcher.Constraint("DistanceY", 65, 2, 65, 1, 3.0))
sketch1.addConstraint(Sketcher.Constraint("DistanceY", 68, 2, 68, 1, 3.0))
sketch1.addConstraint(Sketcher.Constraint("DistanceY", 71, 1, 71, 2, 3.0))
sketch1.addConstraint(Sketcher.Constraint("DistanceX", 1, 1, 1, 2, 4.5))
sketch1.addConstraint(Sketcher.Constraint("DistanceX", 3, 1, 3, 2, 0.5))
sketch1.addConstraint(Sketcher.Constraint("DistanceX", 16, 1, 16, 2, 0.5))
sketch1.addConstraint(Sketcher.Constraint("DistanceX", 18, 1, 18, 2, 4.5))
sketch1.addConstraint(Sketcher.Constraint("DistanceX", 21, 2, 21, 1, 0.5))
sketch1.addConstraint(Sketcher.Constraint("DistanceX", 25, 2, 25, 1, 1.5))
sketch1.addConstraint(Sketcher.Constraint("DistanceX", 32, 1, 32, 2, 1.5))
sketch1.addConstraint(Sketcher.Constraint("DistanceX", 36, 1, 36, 2, 0.5))
sketch1.addConstraint(Sketcher.Constraint("DistanceX", 39, 2, 39, 1, 4.5))
sketch1.addConstraint(Sketcher.Constraint("DistanceX", 41, 2, 41, 1, 0.5))
sketch1.addConstraint(Sketcher.Constraint("DistanceX", 54, 2, 54, 1, 0.5))
sketch1.addConstraint(Sketcher.Constraint("DistanceX", 56, 2, 56, 1, 4.5))
sketch1.addConstraint(Sketcher.Constraint("DistanceX", 59, 1, 59, 2, 0.5))
sketch1.addConstraint(Sketcher.Constraint("DistanceX", 63, 1, 63, 2, 1.5))
sketch1.addConstraint(Sketcher.Constraint("DistanceX", 70, 2, 70, 1, 1.5))
sketch1.addConstraint(Sketcher.Constraint("DistanceX", 74, 2, 74, 1, 0.5))
sketch1.addConstraint(Sketcher.Constraint("DistanceY", 2, 1, 2, 2, 0.5))
sketch1.addConstraint(Sketcher.Constraint("DistanceY", 6, 1, 6, 2, 1.5))
sketch1.addConstraint(Sketcher.Constraint("DistanceY", 13, 2, 13, 1, 1.5))
sketch1.addConstraint(Sketcher.Constraint("DistanceY", 17, 2, 17, 1, 0.5))
sketch1.addConstraint(Sketcher.Constraint("DistanceY", 20, 1, 20, 2, 4.5))
sketch1.addConstraint(Sketcher.Constraint("DistanceY", 22, 1, 22, 2, 0.5))
sketch1.addConstraint(Sketcher.Constraint("DistanceY", 35, 1, 35, 2, 0.5))
sketch1.addConstraint(Sketcher.Constraint("DistanceY", 37, 1, 37, 2, 4.5))
sketch1.addConstraint(Sketcher.Constraint("DistanceY", 40, 2, 40, 1, 0.5))
sketch1.addConstraint(Sketcher.Constraint("DistanceY", 44, 2, 44, 1, 1.5))
sketch1.addConstraint(Sketcher.Constraint("DistanceY", 51, 1, 51, 2, 1.5))
sketch1.addConstraint(Sketcher.Constraint("DistanceY", 55, 1, 55, 2, 0.5))
sketch1.addConstraint(Sketcher.Constraint("DistanceY", 58, 2, 58, 1, 4.5))
sketch1.addConstraint(Sketcher.Constraint("DistanceY", 60, 2, 60, 1, 0.5))
sketch1.addConstraint(Sketcher.Constraint("DistanceY", 73, 2, 73, 1, 0.5))
sketch1.addConstraint(Sketcher.Constraint("DistanceY", 75, 2, 75, 1, 4.5))
sketch1.addConstraint(Sketcher.Constraint("DistanceX", 0, 3, -1, 1, 8.000001))
sketch1.addConstraint(Sketcher.Constraint("DistanceX", -1, 1, 19, 3, 8.000001))
sketch1.addConstraint(Sketcher.Constraint("DistanceX", -1, 1, 38, 3, 8.000001))
sketch1.addConstraint(Sketcher.Constraint("DistanceX", 57, 3, -1, 1, 8.000001))
sketch1.addConstraint(Sketcher.Constraint("DistanceX", 0, 2, -1, 1, 8.0))
sketch1.addConstraint(Sketcher.Constraint("DistanceX", -1, 1, 12, 2, 6.0))
sketch1.addConstraint(Sketcher.Constraint("DistanceX", -1, 1, 28, 2, 4.0))
sketch1.addConstraint(Sketcher.Constraint("DistanceX", -1, 1, 38, 2, 8.0))
sketch1.addConstraint(Sketcher.Constraint("DistanceX", 50, 2, -1, 1, 6.0))
sketch1.addConstraint(Sketcher.Constraint("DistanceX", 66, 2, -1, 1, 4.0))
sketch1.addConstraint(Sketcher.Constraint("DistanceX", -1, 1, 77, 1, 3.0))
sketch1.addConstraint(Sketcher.Constraint("DistanceX", 7, 2, -1, 1, 3.5))
sketch1.addConstraint(Sketcher.Constraint("DistanceX", -1, 1, 10, 2, 0.5))
sketch1.addConstraint(Sketcher.Constraint("DistanceX", -1, 1, 26, 2, 4.5))
sketch1.addConstraint(Sketcher.Constraint("DistanceX", -1, 1, 29, 2, 4.5))
sketch1.addConstraint(Sketcher.Constraint("DistanceX", -1, 1, 45, 2, 3.5))
sketch1.addConstraint(Sketcher.Constraint("DistanceX", 48, 2, -1, 1, 0.5))
sketch1.addConstraint(Sketcher.Constraint("DistanceX", 64, 2, -1, 1, 4.5))
sketch1.addConstraint(Sketcher.Constraint("DistanceX", 67, 2, -1, 1, 4.5))
sketch1.addConstraint(Sketcher.Constraint("Radius", 76, 3.000021))
sketch1.addConstraint(Sketcher.Constraint("Radius", 79, 3.000021))
sketch1.addConstraint(Sketcher.Constraint("Radius", 81, 3.000021))
sketch1.addConstraint(Sketcher.Constraint("Radius", 83, 3.000021))
sketch1.addConstraint(Sketcher.Constraint("DistanceY", -1, 1, 38, 3, 8.008048))
sketch1.addConstraint(Sketcher.Constraint("DistanceY", -1, 1, 57, 3, 8.008048))
sketch1.addConstraint(Sketcher.Constraint("DistanceY", -1, 1, 76, 3, 0.008032))
sketch1.addConstraint(Sketcher.Constraint("DistanceY", 78, 1, -1, 1, 1.73005))
sketch1.addConstraint(Sketcher.Constraint("DistanceY", 81, 1, -1, 1, 1.73005))
sketch1.addConstraint(Sketcher.Constraint("DistanceY", -1, 1, 83, 1, 2.45325))
sketch1.addConstraint(Sketcher.Constraint("DistanceY", -1, 1, 84, 1, 2.45325))
sketch1.addConstraint(Sketcher.Constraint("Distance", 7, 3.535534))
sketch1.addConstraint(Sketcher.Constraint("Distance", 9, 0.707107))
sketch1.addConstraint(Sketcher.Constraint("Distance", 10, 0.707107))
sketch1.addConstraint(Sketcher.Constraint("Distance", 12, 3.535534))
sketch1.addConstraint(Sketcher.Constraint("Distance", 26, 3.535534))
sketch1.addConstraint(Sketcher.Constraint("Distance", 28, 0.707107))
sketch1.addConstraint(Sketcher.Constraint("Distance", 29, 0.707107))
sketch1.addConstraint(Sketcher.Constraint("Distance", 31, 3.535534))
sketch1.addConstraint(Sketcher.Constraint("Distance", 45, 3.535534))
sketch1.addConstraint(Sketcher.Constraint("Distance", 47, 0.707107))
sketch1.addConstraint(Sketcher.Constraint("Distance", 48, 0.707107))
sketch1.addConstraint(Sketcher.Constraint("Distance", 64, 3.535534))
sketch1.addConstraint(Sketcher.Constraint("Distance", 66, 0.707107))
sketch1.addConstraint(Sketcher.Constraint("Distance", 67, 0.707107))
sketch1.addConstraint(Sketcher.Constraint("Distance", 69, 3.535534))
sketch1.addConstraint(Sketcher.Constraint("DistanceY", 0, 3, -1, 1, 7.991954))
sketch1.addConstraint(Sketcher.Constraint("DistanceY", 19, 2, -1, 1, 7.991953))
sketch1.addConstraint(Sketcher.Constraint("DistanceY", -1, 1, 57, 2, 8.008047))
sketch1.addConstraint(Sketcher.Constraint("DistanceX", -1, 1, 76, 1, 2.445203))
sketch1.addConstraint(Sketcher.Constraint("DistanceY", -1, 1, 77, 1, 0.008047))
sketch1.addConstraint(Sketcher.Constraint("DistanceX", -1, 1, 79, 1, 1.738097))
sketch1.addConstraint(Sketcher.Constraint("DistanceX", 80, 1, -1, 1, 1.738097))
sketch1.addConstraint(Sketcher.Constraint("DistanceX", 82, 1, -1, 1, 2.445203))
pad1 = body.newObject("PartDesign::Pad", "Pad")
pad1.Profile = sketch1
pad1.Length = 490

doc.recompute()
